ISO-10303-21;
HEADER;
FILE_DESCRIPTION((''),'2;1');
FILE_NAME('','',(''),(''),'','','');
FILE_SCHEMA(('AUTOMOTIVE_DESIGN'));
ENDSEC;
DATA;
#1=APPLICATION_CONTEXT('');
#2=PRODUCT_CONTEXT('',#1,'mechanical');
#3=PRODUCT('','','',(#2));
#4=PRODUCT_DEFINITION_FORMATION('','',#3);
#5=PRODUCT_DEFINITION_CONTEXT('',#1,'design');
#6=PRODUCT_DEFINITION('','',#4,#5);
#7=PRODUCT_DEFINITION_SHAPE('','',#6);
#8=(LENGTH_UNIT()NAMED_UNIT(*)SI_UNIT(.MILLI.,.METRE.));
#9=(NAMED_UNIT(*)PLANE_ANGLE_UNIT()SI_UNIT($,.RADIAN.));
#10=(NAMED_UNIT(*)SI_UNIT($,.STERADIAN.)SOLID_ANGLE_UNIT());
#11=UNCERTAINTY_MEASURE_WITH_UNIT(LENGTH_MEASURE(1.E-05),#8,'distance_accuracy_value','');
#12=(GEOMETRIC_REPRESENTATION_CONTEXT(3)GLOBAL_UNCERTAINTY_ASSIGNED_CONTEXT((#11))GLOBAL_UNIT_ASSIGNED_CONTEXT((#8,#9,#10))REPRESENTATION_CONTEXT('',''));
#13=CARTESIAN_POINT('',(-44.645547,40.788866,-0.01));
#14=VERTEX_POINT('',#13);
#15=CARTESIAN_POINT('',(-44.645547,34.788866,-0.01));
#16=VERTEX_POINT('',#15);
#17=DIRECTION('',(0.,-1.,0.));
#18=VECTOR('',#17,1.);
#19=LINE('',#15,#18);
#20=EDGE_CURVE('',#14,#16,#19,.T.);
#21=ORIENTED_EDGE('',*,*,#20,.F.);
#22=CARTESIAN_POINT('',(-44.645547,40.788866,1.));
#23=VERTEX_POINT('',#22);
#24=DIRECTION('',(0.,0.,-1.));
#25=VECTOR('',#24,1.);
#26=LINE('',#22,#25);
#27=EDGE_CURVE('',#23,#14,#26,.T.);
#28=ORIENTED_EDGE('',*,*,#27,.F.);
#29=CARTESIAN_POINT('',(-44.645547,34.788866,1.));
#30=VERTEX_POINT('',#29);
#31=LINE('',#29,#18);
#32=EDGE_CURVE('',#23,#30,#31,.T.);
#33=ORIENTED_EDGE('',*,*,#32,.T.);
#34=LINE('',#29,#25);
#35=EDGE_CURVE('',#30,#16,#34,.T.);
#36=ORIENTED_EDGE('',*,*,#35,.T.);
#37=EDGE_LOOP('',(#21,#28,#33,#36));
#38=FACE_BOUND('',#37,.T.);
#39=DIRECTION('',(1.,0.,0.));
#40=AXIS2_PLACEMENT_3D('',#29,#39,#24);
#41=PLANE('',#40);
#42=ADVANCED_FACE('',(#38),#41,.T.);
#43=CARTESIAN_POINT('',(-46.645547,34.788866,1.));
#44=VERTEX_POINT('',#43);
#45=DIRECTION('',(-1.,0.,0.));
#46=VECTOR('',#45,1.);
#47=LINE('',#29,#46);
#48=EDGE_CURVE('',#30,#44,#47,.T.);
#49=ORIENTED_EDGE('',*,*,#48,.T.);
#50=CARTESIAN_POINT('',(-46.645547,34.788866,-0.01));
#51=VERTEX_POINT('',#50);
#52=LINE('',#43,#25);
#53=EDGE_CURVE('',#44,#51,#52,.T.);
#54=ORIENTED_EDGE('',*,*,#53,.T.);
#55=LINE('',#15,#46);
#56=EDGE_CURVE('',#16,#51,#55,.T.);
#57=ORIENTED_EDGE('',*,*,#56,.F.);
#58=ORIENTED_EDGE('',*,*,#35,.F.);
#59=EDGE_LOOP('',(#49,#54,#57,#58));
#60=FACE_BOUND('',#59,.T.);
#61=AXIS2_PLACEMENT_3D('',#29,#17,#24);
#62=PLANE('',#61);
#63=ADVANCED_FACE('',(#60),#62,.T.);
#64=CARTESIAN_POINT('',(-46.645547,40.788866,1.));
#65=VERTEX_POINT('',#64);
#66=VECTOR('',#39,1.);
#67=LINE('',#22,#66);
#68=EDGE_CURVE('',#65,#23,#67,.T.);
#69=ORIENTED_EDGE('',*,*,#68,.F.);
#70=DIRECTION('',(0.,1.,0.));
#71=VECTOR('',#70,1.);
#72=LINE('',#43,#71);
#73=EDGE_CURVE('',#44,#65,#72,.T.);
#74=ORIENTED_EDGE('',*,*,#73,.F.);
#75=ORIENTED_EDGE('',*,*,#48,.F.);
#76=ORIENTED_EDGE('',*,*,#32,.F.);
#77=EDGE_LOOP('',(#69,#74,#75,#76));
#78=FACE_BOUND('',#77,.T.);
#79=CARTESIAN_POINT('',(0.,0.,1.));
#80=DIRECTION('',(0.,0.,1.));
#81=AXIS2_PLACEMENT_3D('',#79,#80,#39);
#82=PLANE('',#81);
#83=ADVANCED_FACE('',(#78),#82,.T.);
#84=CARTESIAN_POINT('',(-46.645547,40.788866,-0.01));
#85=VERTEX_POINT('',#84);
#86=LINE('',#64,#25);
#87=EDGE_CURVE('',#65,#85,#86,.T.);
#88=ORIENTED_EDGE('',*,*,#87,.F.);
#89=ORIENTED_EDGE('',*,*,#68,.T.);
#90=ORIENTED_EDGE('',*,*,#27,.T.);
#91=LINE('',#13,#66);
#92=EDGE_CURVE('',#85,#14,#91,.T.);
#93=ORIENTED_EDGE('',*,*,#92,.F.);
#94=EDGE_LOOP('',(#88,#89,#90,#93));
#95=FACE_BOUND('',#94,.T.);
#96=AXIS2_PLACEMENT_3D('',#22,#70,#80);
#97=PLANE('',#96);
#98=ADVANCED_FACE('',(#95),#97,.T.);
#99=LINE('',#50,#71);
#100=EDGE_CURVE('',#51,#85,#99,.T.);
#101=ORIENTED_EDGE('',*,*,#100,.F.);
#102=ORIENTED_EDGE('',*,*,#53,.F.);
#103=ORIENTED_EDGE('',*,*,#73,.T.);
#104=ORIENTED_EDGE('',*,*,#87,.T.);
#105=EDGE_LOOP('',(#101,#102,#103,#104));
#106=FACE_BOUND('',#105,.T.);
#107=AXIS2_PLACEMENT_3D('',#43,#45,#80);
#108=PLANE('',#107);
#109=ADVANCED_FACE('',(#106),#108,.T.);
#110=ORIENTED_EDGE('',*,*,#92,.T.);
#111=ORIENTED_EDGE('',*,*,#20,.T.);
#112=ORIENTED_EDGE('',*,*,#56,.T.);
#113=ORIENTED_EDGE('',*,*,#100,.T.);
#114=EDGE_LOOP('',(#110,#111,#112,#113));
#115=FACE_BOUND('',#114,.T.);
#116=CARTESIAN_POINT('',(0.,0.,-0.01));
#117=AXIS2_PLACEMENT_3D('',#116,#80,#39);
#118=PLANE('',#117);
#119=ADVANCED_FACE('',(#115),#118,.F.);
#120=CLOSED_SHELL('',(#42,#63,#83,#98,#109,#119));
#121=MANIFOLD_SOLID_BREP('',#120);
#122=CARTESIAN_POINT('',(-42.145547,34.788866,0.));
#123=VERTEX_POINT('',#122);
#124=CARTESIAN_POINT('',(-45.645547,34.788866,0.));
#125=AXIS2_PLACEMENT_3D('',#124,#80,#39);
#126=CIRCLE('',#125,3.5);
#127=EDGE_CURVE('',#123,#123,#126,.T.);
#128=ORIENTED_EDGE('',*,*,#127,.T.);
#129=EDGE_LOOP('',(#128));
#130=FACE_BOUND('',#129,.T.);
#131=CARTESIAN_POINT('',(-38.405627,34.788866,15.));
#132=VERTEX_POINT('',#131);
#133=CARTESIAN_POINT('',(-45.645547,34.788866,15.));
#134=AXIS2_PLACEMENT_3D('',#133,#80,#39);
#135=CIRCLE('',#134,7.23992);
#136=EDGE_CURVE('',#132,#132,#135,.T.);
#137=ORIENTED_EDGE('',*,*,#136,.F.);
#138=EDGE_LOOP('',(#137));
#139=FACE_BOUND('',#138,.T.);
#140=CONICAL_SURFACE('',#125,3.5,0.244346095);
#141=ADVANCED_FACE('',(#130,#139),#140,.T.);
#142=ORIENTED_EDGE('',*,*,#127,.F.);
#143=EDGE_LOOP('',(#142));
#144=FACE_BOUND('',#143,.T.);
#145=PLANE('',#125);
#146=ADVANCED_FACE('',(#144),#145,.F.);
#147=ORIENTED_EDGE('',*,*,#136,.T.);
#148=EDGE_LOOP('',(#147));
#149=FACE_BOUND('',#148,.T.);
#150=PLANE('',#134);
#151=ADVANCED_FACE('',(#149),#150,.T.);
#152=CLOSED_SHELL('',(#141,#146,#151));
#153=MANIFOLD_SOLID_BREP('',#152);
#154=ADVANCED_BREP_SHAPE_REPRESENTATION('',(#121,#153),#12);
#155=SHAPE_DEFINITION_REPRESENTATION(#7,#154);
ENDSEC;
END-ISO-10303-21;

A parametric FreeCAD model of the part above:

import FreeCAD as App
import Part
import Sketcher


def faces_at(feature, points):
    """Names of the faces that lie closest to the given points."""
    faces = feature.Shape.Faces
    near = lambda p: min(range(len(faces)), key=lambda i: faces[i].distToShape(Part.Vertex(*p))[0])
    return sorted({f"Face{near(p) + 1}" for p in points})

doc = App.newDocument("Part")
body = doc.addObject("PartDesign::Body", "Body")

# Sketch on XY plane
sketch1 = body.newObject("Sketcher::SketchObject", "Sketch")
sketch1.AttachmentSupport = (doc.getObject("XY_Plane"), [""])
sketch1.MapMode = "FlatFace"
sketch1.addGeometry(Part.Circle(App.Vector(-45.6, 34.8, 0), App.Vector(0, 0, 1), 3.5), False)
sketch1.addConstraint([
    Sketcher.Constraint("Diameter", 0, 7.0),
    Sketcher.Constraint("DistanceX", 0, 3, -1, 1, 45.645547),
    Sketcher.Constraint("DistanceY", -1, 1, 0, 3, 34.788866),
])
pad1 = body.newObject("PartDesign::Pad", "Pad")
pad1.Profile = sketch1
pad1.Length = 15
doc.recompute()

draft = body.newObject("PartDesign::Draft", "Draft")
draft.Base = (pad1, faces_at(pad1, [(-49.146, 34.789, 7.5)]))
draft.NeutralPlane = (doc.getObject("XY_Plane"), [""])
draft.Angle = 14
draft.Reversed = True
body2 = doc.addObject("PartDesign::Body", "Body001")

# Sketch on XY plane
sketch2 = body2.newObject("Sketcher::SketchObject", "Sketch001")
sketch2.AttachmentSupport = (doc.getObject("XY_Plane001"), [""])
sketch2.MapMode = "FlatFace"
sketch2.addGeometry([
    Part.LineSegment(App.Vector(-44.6, 40.8, 0), App.Vector(-44.6, 34.8, 0)),
    Part.LineSegment(App.Vector(-44.6, 34.8, 0), App.Vector(-46.6, 34.8, 0)),
    Part.LineSegment(App.Vector(-46.6, 34.8, 0), App.Vector(-46.6, 40.8, 0)),
    Part.LineSegment(App.Vector(-46.6, 40.8, 0), App.Vector(-44.6, 40.8, 0)),
], False)
sketch2.addConstraint([
    Sketcher.Constraint("Coincident", 0, 2, 1, 1),
    Sketcher.Constraint("Coincident", 1, 2, 2, 1),
    Sketcher.Constraint("Coincident", 2, 2, 3, 1),
    Sketcher.Constraint("Coincident", 3, 2, 0, 1),
    Sketcher.Constraint("Vertical", 0),
    Sketcher.Constraint("Horizontal", 1),
    Sketcher.Constraint("Vertical", 2),
    Sketcher.Constraint("Horizontal", 3),
    Sketcher.Constraint("DistanceX", 1, 2, 1, 1, 2.0),
    Sketcher.Constraint("DistanceY", 0, 2, 0, 1, 6.0),
    Sketcher.Constraint("DistanceX", 0, 2, -1, 1, 44.645547),
    Sketcher.Constraint("DistanceY", -1, 1, 0, 2, 34.788866),
])
pad2 = body2.newObject("PartDesign::Pad", "Pad001")
pad2.Profile = sketch2
pad2.Type = "TwoLengths"
pad2.Length = 0.01
pad2.Length2 = 1
pad2.Reversed = True

doc.recompute()
